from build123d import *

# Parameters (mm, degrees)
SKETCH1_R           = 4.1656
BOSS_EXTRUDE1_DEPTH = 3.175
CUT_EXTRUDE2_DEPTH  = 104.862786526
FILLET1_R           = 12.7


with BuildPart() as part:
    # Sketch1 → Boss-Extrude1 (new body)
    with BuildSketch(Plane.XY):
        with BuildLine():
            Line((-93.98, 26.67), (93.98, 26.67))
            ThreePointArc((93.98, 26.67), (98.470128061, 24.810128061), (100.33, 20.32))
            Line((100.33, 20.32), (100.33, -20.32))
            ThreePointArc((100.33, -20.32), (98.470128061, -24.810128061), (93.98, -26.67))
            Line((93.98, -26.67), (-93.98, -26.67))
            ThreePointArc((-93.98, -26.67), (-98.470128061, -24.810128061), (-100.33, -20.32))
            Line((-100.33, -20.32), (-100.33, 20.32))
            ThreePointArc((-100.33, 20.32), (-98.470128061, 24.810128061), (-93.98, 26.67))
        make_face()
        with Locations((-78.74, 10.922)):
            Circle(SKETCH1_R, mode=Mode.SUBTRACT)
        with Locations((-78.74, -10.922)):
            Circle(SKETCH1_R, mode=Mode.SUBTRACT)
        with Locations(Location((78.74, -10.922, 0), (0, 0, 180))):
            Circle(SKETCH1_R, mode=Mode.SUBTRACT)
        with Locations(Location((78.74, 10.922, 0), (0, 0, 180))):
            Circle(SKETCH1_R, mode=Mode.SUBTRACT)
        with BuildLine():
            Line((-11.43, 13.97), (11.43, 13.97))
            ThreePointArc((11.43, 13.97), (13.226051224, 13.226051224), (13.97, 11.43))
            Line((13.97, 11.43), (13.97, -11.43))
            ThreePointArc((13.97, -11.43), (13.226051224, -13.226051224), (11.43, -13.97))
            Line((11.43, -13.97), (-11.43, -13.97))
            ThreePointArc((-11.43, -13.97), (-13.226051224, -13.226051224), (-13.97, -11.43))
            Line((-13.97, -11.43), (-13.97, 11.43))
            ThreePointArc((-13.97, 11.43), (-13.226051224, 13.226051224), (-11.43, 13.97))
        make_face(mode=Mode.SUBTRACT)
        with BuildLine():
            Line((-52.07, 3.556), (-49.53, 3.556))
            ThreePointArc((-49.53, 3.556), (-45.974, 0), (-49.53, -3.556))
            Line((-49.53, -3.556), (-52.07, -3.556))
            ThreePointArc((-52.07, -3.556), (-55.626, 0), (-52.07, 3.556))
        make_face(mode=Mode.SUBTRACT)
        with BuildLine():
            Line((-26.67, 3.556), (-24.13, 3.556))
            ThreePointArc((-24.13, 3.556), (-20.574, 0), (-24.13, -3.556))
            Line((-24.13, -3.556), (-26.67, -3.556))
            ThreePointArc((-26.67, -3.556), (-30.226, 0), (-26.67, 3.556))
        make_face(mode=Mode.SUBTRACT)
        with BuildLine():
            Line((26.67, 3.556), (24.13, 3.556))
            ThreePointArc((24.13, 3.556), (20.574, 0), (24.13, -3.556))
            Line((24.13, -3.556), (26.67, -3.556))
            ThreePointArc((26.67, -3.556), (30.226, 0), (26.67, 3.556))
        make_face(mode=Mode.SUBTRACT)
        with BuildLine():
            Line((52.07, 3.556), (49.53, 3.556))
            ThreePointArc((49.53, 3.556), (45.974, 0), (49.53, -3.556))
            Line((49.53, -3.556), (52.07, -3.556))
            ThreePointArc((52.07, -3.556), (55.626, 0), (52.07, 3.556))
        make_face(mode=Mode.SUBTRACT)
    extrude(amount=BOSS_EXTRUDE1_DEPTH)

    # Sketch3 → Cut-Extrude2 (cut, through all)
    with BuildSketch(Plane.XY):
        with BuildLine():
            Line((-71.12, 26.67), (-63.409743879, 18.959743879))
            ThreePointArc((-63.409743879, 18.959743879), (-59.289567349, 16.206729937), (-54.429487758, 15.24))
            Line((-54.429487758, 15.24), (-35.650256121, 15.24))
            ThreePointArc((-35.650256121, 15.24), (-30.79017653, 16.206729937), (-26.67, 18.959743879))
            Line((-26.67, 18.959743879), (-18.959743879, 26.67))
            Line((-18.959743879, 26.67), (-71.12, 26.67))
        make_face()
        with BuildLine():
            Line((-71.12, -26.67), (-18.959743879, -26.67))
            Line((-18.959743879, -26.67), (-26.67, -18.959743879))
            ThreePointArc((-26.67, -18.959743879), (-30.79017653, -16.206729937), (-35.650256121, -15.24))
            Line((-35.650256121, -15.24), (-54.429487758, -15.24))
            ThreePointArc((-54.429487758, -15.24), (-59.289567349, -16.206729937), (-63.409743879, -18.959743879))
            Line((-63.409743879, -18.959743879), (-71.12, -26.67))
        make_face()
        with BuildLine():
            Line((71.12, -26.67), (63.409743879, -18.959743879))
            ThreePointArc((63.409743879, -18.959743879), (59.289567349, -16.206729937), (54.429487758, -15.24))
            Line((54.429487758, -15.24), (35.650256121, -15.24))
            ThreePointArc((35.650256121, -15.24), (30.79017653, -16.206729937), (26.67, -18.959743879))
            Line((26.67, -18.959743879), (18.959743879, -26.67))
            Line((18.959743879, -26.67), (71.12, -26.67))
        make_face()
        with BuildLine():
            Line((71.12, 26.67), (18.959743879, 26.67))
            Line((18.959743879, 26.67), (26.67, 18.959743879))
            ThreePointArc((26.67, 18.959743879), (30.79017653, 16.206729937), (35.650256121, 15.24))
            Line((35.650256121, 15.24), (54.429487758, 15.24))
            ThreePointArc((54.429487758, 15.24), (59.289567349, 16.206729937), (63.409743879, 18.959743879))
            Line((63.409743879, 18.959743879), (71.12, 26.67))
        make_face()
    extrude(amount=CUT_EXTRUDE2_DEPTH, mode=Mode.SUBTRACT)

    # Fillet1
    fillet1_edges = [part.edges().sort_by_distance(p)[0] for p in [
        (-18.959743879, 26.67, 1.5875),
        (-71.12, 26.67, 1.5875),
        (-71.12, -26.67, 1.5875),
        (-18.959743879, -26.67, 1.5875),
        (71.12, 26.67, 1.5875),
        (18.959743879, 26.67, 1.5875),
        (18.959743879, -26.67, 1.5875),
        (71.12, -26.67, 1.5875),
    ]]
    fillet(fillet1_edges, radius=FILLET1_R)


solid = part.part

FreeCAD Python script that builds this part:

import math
import FreeCAD as App
import Part
import Sketcher
from FreeCAD import Vector
Q = App.Units.Quantity


def edges_at(feature, points):
    """Names of the edges that pass closest to the given points."""
    edges = feature.Shape.Edges
    near = lambda p: min(range(len(edges)), key=lambda i: edges[i].distToShape(Part.Vertex(*p))[0])
    return sorted({f"Edge{near(p) + 1}" for p in points})

doc = App.newDocument("Part")
body = doc.addObject("PartDesign::Body", "Body")

sketch1 = doc.addObject("Sketcher::SketchObject", "Sketch")
body.addObject(sketch1)
sketch1.AttachmentSupport = (doc.XY_Plane, [""])
sketch1.MapMode = "FlatFace"
sketch1.addGeometry(Part.LineSegment(Vector(93.98, 26.67, 0), Vector(-93.98, 26.67, 0)), False)
sketch1.addGeometry(Part.ArcOfCircle(Part.Circle(Vector(-93.98, 20.32, 0), Vector(0, 0, 1), 6.35), math.radians(90), math.radians(180)), False)
sketch1.addGeometry(Part.LineSegment(Vector(-100.33, 20.32, 0), Vector(-100.33, -20.32, 0)), False)
sketch1.addGeometry(Part.ArcOfCircle(Part.Circle(Vector(-93.98, -20.32, 0), Vector(0, 0, 1), 6.35), math.radians(180), math.radians(270)), False)
sketch1.addGeometry(Part.LineSegment(Vector(-93.98, -26.67, 0), Vector(93.98, -26.67, 0)), False)
sketch1.addGeometry(Part.ArcOfCircle(Part.Circle(Vector(93.98, -20.32, 0), Vector(0, 0, 1), 6.35), math.radians(-90), math.radians(0)), False)
sketch1.addGeometry(Part.LineSegment(Vector(100.33, -20.32, 0), Vector(100.33, 20.32, 0)), False)
sketch1.addGeometry(Part.ArcOfCircle(Part.Circle(Vector(93.98, 20.32, 0), Vector(0, 0, 1), 6.35), math.radians(0), math.radians(90)), False)
sketch1.addGeometry(Part.Circle(Vector(78.74, -10.922, 0), Vector(0, 0, 1), 4.1656), False)
sketch1.addGeometry(Part.Circle(Vector(-78.74, -10.922, 0), Vector(0, 0, 1), 4.1656), False)
sketch1.addGeometry(Part.ArcOfCircle(Part.Circle(Vector(52.07, 0, 0), Vector(0, 0, 1), 3.556), math.radians(-90), math.radians(90)), False)
sketch1.addGeometry(Part.LineSegment(Vector(52.07, -3.556, 0), Vector(49.53, -3.556, 0)), False)
sketch1.addGeometry(Part.ArcOfCircle(Part.Circle(Vector(49.53, 0, 0), Vector(0, 0, 1), 3.556), math.radians(90), math.radians(270)), False)
sketch1.addGeometry(Part.LineSegment(Vector(49.53, 3.556, 0), Vector(52.07, 3.556, 0)), False)
sketch1.addGeometry(Part.ArcOfCircle(Part.Circle(Vector(26.67, 0, 0), Vector(0, 0, 1), 3.556), math.radians(-90), math.radians(90)), False)
sketch1.addGeometry(Part.LineSegment(Vector(26.67, -3.556, 0), Vector(24.13, -3.556, 0)), False)
sketch1.addGeometry(Part.ArcOfCircle(Part.Circle(Vector(24.13, 0, 0), Vector(0, 0, 1), 3.556), math.radians(90), math.radians(270)), False)
sketch1.addGeometry(Part.LineSegment(Vector(24.13, 3.556, 0), Vector(26.67, 3.556, 0)), False)
sketch1.addGeometry(Part.Circle(Vector(78.74, 10.922, 0), Vector(0, 0, 1), 4.1656), False)
sketch1.addGeometry(Part.LineSegment(Vector(-11.43, 13.97, 0), Vector(11.43, 13.97, 0)), False)
sketch1.addGeometry(Part.ArcOfCircle(Part.Circle(Vector(11.43, 11.43, 0), Vector(0, 0, 1), 2.54), math.radians(0), math.radians(90)), False)
sketch1.addGeometry(Part.LineSegment(Vector(13.97, 11.43, 0), Vector(13.97, -11.43, 0)), False)
sketch1.addGeometry(Part.ArcOfCircle(Part.Circle(Vector(11.43, -11.43, 0), Vector(0, 0, 1), 2.54), math.radians(-90), math.radians(0)), False)
sketch1.addGeometry(Part.LineSegment(Vector(11.43, -13.97, 0), Vector(-11.43, -13.97, 0)), False)
sketch1.addGeometry(Part.ArcOfCircle(Part.Circle(Vector(-11.43, -11.43, 0), Vector(0, 0, 1), 2.54), math.radians(-180), math.radians(-90)), False)
sketch1.addGeometry(Part.LineSegment(Vector(-13.97, -11.43, 0), Vector(-13.97, 11.43, 0)), False)
sketch1.addGeometry(Part.ArcOfCircle(Part.Circle(Vector(-11.43, 11.43, 0), Vector(0, 0, 1), 2.54), math.radians(90), math.radians(180)), False)
sketch1.addGeometry(Part.LineSegment(Vector(-26.67, 3.556, 0), Vector(-24.13, 3.556, 0)), False)
sketch1.addGeometry(Part.ArcOfCircle(Part.Circle(Vector(-24.13, 0, 0), Vector(0, 0, 1), 3.556), math.radians(-90), math.radians(90)), False)
sketch1.addGeometry(Part.LineSegment(Vector(-24.13, -3.556, 0), Vector(-26.67, -3.556, 0)), False)
sketch1.addGeometry(Part.ArcOfCircle(Part.Circle(Vector(-26.67, 0, 0), Vector(0, 0, 1), 3.556), math.radians(90), math.radians(270)), False)
sketch1.addGeometry(Part.LineSegment(Vector(-52.07, 3.556, 0), Vector(-49.53, 3.556, 0)), False)
sketch1.addGeometry(Part.ArcOfCircle(Part.Circle(Vector(-49.53, 0, 0), Vector(0, 0, 1), 3.556), math.radians(-90), math.radians(90)), False)
sketch1.addGeometry(Part.LineSegment(Vector(-49.53, -3.556, 0), Vector(-52.07, -3.556, 0)), False)
sketch1.addGeometry(Part.ArcOfCircle(Part.Circle(Vector(-52.07, 0, 0), Vector(0, 0, 1), 3.556), math.radians(90), math.radians(270)), False)
sketch1.addGeometry(Part.Circle(Vector(-78.74, 10.922, 0), Vector(0, 0, 1), 4.1656), False)
sketch1.addConstraint(Sketcher.Constraint("Tangent", 0, 2, 1, 1))
sketch1.addConstraint(Sketcher.Constraint("Tangent", 1, 2, 2, 1))
sketch1.addConstraint(Sketcher.Constraint("Tangent", 2, 2, 3, 1))
sketch1.addConstraint(Sketcher.Constraint("Tangent", 3, 2, 4, 1))
sketch1.addConstraint(Sketcher.Constraint("Tangent", 4, 2, 5, 1))
sketch1.addConstraint(Sketcher.Constraint("Tangent", 5, 2, 6, 1))
sketch1.addConstraint(Sketcher.Constraint("Tangent", 6, 2, 7, 1))
sketch1.addConstraint(Sketcher.Constraint("Tangent", 7, 2, 0, 1))
sketch1.addConstraint(Sketcher.Constraint("Tangent", 10, 1, 11, 1))
sketch1.addConstraint(Sketcher.Constraint("Tangent", 11, 2, 12, 2))
sketch1.addConstraint(Sketcher.Constraint("Tangent", 12, 1, 13, 1))
sketch1.addConstraint(Sketcher.Constraint("Tangent", 13, 2, 10, 2))
sketch1.addConstraint(Sketcher.Constraint("Tangent", 14, 1, 15, 1))
sketch1.addConstraint(Sketcher.Constraint("Tangent", 15, 2, 16, 2))
sketch1.addConstraint(Sketcher.Constraint("Tangent", 16, 1, 17, 1))
sketch1.addConstraint(Sketcher.Constraint("Tangent", 17, 2, 14, 2))
sketch1.addConstraint(Sketcher.Constraint("Tangent", 19, 2, 20, 2))
sketch1.addConstraint(Sketcher.Constraint("Tangent", 20, 1, 21, 1))
sketch1.addConstraint(Sketcher.Constraint("Tangent", 21, 2, 22, 2))
sketch1.addConstraint(Sketcher.Constraint("Tangent", 22, 1, 23, 1))
sketch1.addConstraint(Sketcher.Constraint("Tangent", 23, 2, 24, 2))
sketch1.addConstraint(Sketcher.Constraint("Tangent", 24, 1, 25, 1))
sketch1.addConstraint(Sketcher.Constraint("Tangent", 25, 2, 26, 2))
sketch1.addConstraint(Sketcher.Constraint("Tangent", 26, 1, 19, 1))
sketch1.addConstraint(Sketcher.Constraint("Tangent", 27, 2, 28, 2))
sketch1.addConstraint(Sketcher.Constraint("Tangent", 28, 1, 29, 1))
sketch1.addConstraint(Sketcher.Constraint("Tangent", 29, 2, 30, 2))
sketch1.addConstraint(Sketcher.Constraint("Tangent", 30, 1, 27, 1))
sketch1.addConstraint(Sketcher.Constraint("Tangent", 31, 2, 32, 2))
sketch1.addConstraint(Sketcher.Constraint("Tangent", 32, 1, 33, 1))
sketch1.addConstraint(Sketcher.Constraint("Tangent", 33, 2, 34, 2))
sketch1.addConstraint(Sketcher.Constraint("Tangent", 34, 1, 31, 1))
sketch1.addConstraint(Sketcher.Constraint("Horizontal", 0))
sketch1.addConstraint(Sketcher.Constraint("Vertical", 2))
sketch1.addConstraint(Sketcher.Constraint("Horizontal", 4))
sketch1.addConstraint(Sketcher.Constraint("Vertical", 6))
sketch1.addConstraint(Sketcher.Constraint("Horizontal", 11))
sketch1.addConstraint(Sketcher.Constraint("Horizontal", 13))
sketch1.addConstraint(Sketcher.Constraint("Horizontal", 15))
sketch1.addConstraint(Sketcher.Constraint("Horizontal", 17))
sketch1.addConstraint(Sketcher.Constraint("Horizontal", 19))
sketch1.addConstraint(Sketcher.Constraint("Vertical", 21))
sketch1.addConstraint(Sketcher.Constraint("Horizontal", 23))
sketch1.addConstraint(Sketcher.Constraint("Vertical", 25))
sketch1.addConstraint(Sketcher.Constraint("Horizontal", 27))
sketch1.addConstraint(Sketcher.Constraint("Horizontal", 29))
sketch1.addConstraint(Sketcher.Constraint("Horizontal", 31))
sketch1.addConstraint(Sketcher.Constraint("Horizontal", 33))
sketch1.addConstraint(Sketcher.Constraint("Equal", 1, 3))
sketch1.addConstraint(Sketcher.Constraint("Equal", 3, 5))
sketch1.addConstraint(Sketcher.Constraint("Equal", 5, 7))
sketch1.addConstraint(Sketcher.Constraint("Equal", 8, 9))
sketch1.addConstraint(Sketcher.Constraint("Equal", 12, 14))
sketch1.addConstraint(Sketcher.Constraint("Equal", 9, 18))
sketch1.addConstraint(Sketcher.Constraint("Equal", 20, 22))
sketch1.addConstraint(Sketcher.Constraint("Equal", 22, 24))
sketch1.addConstraint(Sketcher.Constraint("Equal", 24, 26))
sketch1.addConstraint(Sketcher.Constraint("Equal", 16, 28))
sketch1.addConstraint(Sketcher.Constraint("Equal", 30, 32))
sketch1.addConstraint(Sketcher.Constraint("Equal", 18, 35))
sketch1.addConstraint(Sketcher.Constraint("Symmetric", 1, 3, 5, 3, -1, 1))
sketch1.addConstraint(Sketcher.Constraint("Symmetric", 9, 3, 18, 3, -1, 1))
sketch1.addConstraint(Sketcher.Constraint("Symmetric", 20, 3, 24, 3, -1, 1))
sketch1.addConstraint(Sketcher.Constraint("Symmetric", 16, 3, 28, 3, -1, 1))
sketch1.addConstraint(Sketcher.Constraint("Symmetric", 12, 3, 32, 3, -1, 1))
sketch1.addConstraint(Sketcher.Constraint("Symmetric", 8, 3, 35, 3, -1, 1))
sketch1.addConstraint(Sketcher.Constraint("Symmetric", 8, 3, 9, 3, -2))
sketch1.addConstraint(Sketcher.Constraint("Symmetric", 14, 3, 30, 3, -2))
sketch1.addConstraint(Sketcher.Constraint("Symmetric", 10, 3, 34, 3, -2))
sketch1.addConstraint(Sketcher.Constraint("Equal", 13, 15))
sketch1.addConstraint(Sketcher.Constraint("Equal", 23, 21))
sketch1.addConstraint(Sketcher.Constraint("Radius", 20, Q("0.1 in")))
sketch1.addConstraint(Sketcher.Constraint("Radius", 1, Q("0.25 in")))
sketch1.addConstraint(Sketcher.Constraint("Radius", 10, Q("0.14 in")))
sketch1.addConstraint(Sketcher.Constraint("Diameter", 8, Q("0.328 in")))
sketch1.addConstraint(Sketcher.Constraint("DistanceX", 0, 2, 0, 1, Q("7.4 in")))
sketch1.addConstraint(Sketcher.Constraint("DistanceX", 11, 2, 11, 1, Q("0.1 in")))
sketch1.addConstraint(Sketcher.Constraint("DistanceX", 19, 1, 19, 2, Q("0.9 in")))
sketch1.addConstraint(Sketcher.Constraint("DistanceY", 2, 2, 2, 1, Q("1.6 in")))
sketch1.addConstraint(Sketcher.Constraint("DistanceX", 14, 3, 10, 3, Q("1 in")))
sketch1.addConstraint(Sketcher.Constraint("DistanceX", -1, 1, 8, 3, Q("3.1 in")))
sketch1.addConstraint(Sketcher.Constraint("DistanceX", 20, 3, 16, 3, Q("0.5 in")))
sketch1.addConstraint(Sketcher.Constraint("DistanceY", 8, 3, -1, 1, Q("0.43 in")))
pad1 = doc.addObject("PartDesign::Pad", "Pad")
body.addObject(pad1)
pad1.Profile = sketch1
pad1.Length = Q("0.125 in")

sketch2 = doc.addObject("Sketcher::SketchObject", "Sketch001")
body.addObject(sketch2)
sketch2.AttachmentSupport = (doc.XY_Plane, [""])
sketch2.MapMode = "FlatFace"
sketch2.addGeometry(Part.LineSegment(Vector(-71.12, 26.67, 0), Vector(-63.409744, 18.959744, 0)), False)
sketch2.addGeometry(Part.ArcOfCircle(Part.Circle(Vector(-54.429488, 27.94, 0), Vector(0, 0, 1), 12.7), math.radians(-135), math.radians(-90)), False)
sketch2.addGeometry(Part.LineSegment(Vector(-54.429488, 15.24, 0), Vector(-35.650256, 15.24, 0)), False)
sketch2.addGeometry(Part.ArcOfCircle(Part.Circle(Vector(-35.650256, 27.94, 0), Vector(0, 0, 1), 12.7), math.radians(-90), math.radians(-45)), False)
sketch2.addGeometry(Part.LineSegment(Vector(-26.67, 18.959744, 0), Vector(-18.959744, 26.67, 0)), False)
sketch2.addGeometry(Part.LineSegment(Vector(-18.959744, 26.67, 0), Vector(-71.12, 26.67, 0)), False)
sketch2.addGeometry(Part.LineSegment(Vector(-71.12, -26.67, 0), Vector(-18.959744, -26.67, 0)), False)
sketch2.addGeometry(Part.LineSegment(Vector(-18.959744, -26.67, 0), Vector(-26.67, -18.959744, 0)), False)
sketch2.addGeometry(Part.ArcOfCircle(Part.Circle(Vector(-35.650256, -27.94, 0), Vector(0, 0, 1), 12.7), math.radians(45), math.radians(90)), False)
sketch2.addGeometry(Part.LineSegment(Vector(-35.650256, -15.24, 0), Vector(-54.429488, -15.24, 0)), False)
sketch2.addGeometry(Part.ArcOfCircle(Part.Circle(Vector(-54.429488, -27.94, 0), Vector(0, 0, 1), 12.7), math.radians(90), math.radians(135)), False)
sketch2.addGeometry(Part.LineSegment(Vector(-63.409744, -18.959744, 0), Vector(-71.12, -26.67, 0)), False)
sketch2.addGeometry(Part.LineSegment(Vector(71.12, -26.67, 0), Vector(63.409744, -18.959744, 0)), False)
sketch2.addGeometry(Part.ArcOfCircle(Part.Circle(Vector(54.429488, -27.94, 0), Vector(0, 0, 1), 12.7), math.radians(45), math.radians(90)), False)
sketch2.addGeometry(Part.LineSegment(Vector(54.429488, -15.24, 0), Vector(35.650256, -15.24, 0)), False)
sketch2.addGeometry(Part.ArcOfCircle(Part.Circle(Vector(35.650256, -27.94, 0), Vector(0, 0, 1), 12.7), math.radians(90), math.radians(135)), False)
sketch2.addGeometry(Part.LineSegment(Vector(26.67, -18.959744, 0), Vector(18.959744, -26.67, 0)), False)
sketch2.addGeometry(Part.LineSegment(Vector(18.959744, -26.67, 0), Vector(71.12, -26.67, 0)), False)
sketch2.addGeometry(Part.LineSegment(Vector(71.12, 26.67, 0), Vector(18.959744, 26.67, 0)), False)
sketch2.addGeometry(Part.LineSegment(Vector(18.959744, 26.67, 0), Vector(26.67, 18.959744, 0)), False)
sketch2.addGeometry(Part.ArcOfCircle(Part.Circle(Vector(35.650256, 27.94, 0), Vector(0, 0, 1), 12.7), math.radians(-135), math.radians(-90)), False)
sketch2.addGeometry(Part.LineSegment(Vector(35.650256, 15.24, 0), Vector(54.429488, 15.24, 0)), False)
sketch2.addGeometry(Part.ArcOfCircle(Part.Circle(Vector(54.429488, 27.94, 0), Vector(0, 0, 1), 12.7), math.radians(-90), math.radians(-45)), False)
sketch2.addGeometry(Part.LineSegment(Vector(63.409744, 18.959744, 0), Vector(71.12, 26.67, 0)), False)
sketch2.addConstraint(Sketcher.Constraint("Tangent", 0, 2, 1, 1))
sketch2.addConstraint(Sketcher.Constraint("Tangent", 1, 2, 2, 1))
sketch2.addConstraint(Sketcher.Constraint("Tangent", 2, 2, 3, 1))
sketch2.addConstraint(Sketcher.Constraint("Tangent", 3, 2, 4, 1))
sketch2.addConstraint(Sketcher.Constraint("Coincident", 4, 2, 5, 1))
sketch2.addConstraint(Sketcher.Constraint("Coincident", 5, 2, 0, 1))
sketch2.addConstraint(Sketcher.Constraint("Coincident", 6, 2, 7, 1))
sketch2.addConstraint(Sketcher.Constraint("Tangent", 7, 2, 8, 1))
sketch2.addConstraint(Sketcher.Constraint("Tangent", 8, 2, 9, 1))
sketch2.addConstraint(Sketcher.Constraint("Tangent", 9, 2, 10, 1))
sketch2.addConstraint(Sketcher.Constraint("Tangent", 10, 2, 11, 1))
sketch2.addConstraint(Sketcher.Constraint("Coincident", 11, 2, 6, 1))
sketch2.addConstraint(Sketcher.Constraint("Tangent", 12, 2, 13, 1))
sketch2.addConstraint(Sketcher.Constraint("Tangent", 13, 2, 14, 1))
sketch2.addConstraint(Sketcher.Constraint("Tangent", 14, 2, 15, 1))
sketch2.addConstraint(Sketcher.Constraint("Tangent", 15, 2, 16, 1))
sketch2.addConstraint(Sketcher.Constraint("Coincident", 16, 2, 17, 1))
sketch2.addConstraint(Sketcher.Constraint("Coincident", 17, 2, 12, 1))
sketch2.addConstraint(Sketcher.Constraint("Coincident", 18, 2, 19, 1))
sketch2.addConstraint(Sketcher.Constraint("Tangent", 19, 2, 20, 1))
sketch2.addConstraint(Sketcher.Constraint("Tangent", 20, 2, 21, 1))
sketch2.addConstraint(Sketcher.Constraint("Tangent", 21, 2, 22, 1))
sketch2.addConstraint(Sketcher.Constraint("Tangent", 22, 2, 23, 1))
sketch2.addConstraint(Sketcher.Constraint("Coincident", 23, 2, 18, 1))
sketch2.addConstraint(Sketcher.Constraint("Horizontal", 2))
sketch2.addConstraint(Sketcher.Constraint("Horizontal", 5))
sketch2.addConstraint(Sketcher.Constraint("Horizontal", 6))
sketch2.addConstraint(Sketcher.Constraint("Horizontal", 9))
sketch2.addConstraint(Sketcher.Constraint("Horizontal", 14))
sketch2.addConstraint(Sketcher.Constraint("Horizontal", 17))
sketch2.addConstraint(Sketcher.Constraint("Horizontal", 18))
sketch2.addConstraint(Sketcher.Constraint("Horizontal", 21))
sketch2.addConstraint(Sketcher.Constraint("Equal", 1, 3))
sketch2.addConstraint(Sketcher.Constraint("Equal", 3, 8))
sketch2.addConstraint(Sketcher.Constraint("Equal", 8, 10))
sketch2.addConstraint(Sketcher.Constraint("Equal", 10, 13))
sketch2.addConstraint(Sketcher.Constraint("Equal", 13, 15))
sketch2.addConstraint(Sketcher.Constraint("Equal", 15, 20))
sketch2.addConstraint(Sketcher.Constraint("Equal", 20, 22))
sketch2.addConstraint(Sketcher.Constraint("Symmetric", 1, 3, 13, 3, -1, 1))
sketch2.addConstraint(Sketcher.Constraint("Symmetric", 8, 3, 20, 3, -1, 1))
sketch2.addConstraint(Sketcher.Constraint("Symmetric", 3, 2, 15, 2, -1, 1))
sketch2.addConstraint(Sketcher.Constraint("Symmetric", 5, 2, 17, 2, -1, 1))
sketch2.addConstraint(Sketcher.Constraint("Symmetric", 6, 2, 18, 2, -1, 1))
sketch2.addConstraint(Sketcher.Constraint("Symmetric", 10, 2, 22, 2, -1, 1))
sketch2.addConstraint(Sketcher.Constraint("Symmetric", 10, 3, 13, 3, -2))
sketch2.addConstraint(Sketcher.Constraint("Symmetric", 7, 2, 15, 2, -2))
sketch2.addConstraint(Sketcher.Constraint("Symmetric", 11, 2, 17, 2, -2))
sketch2.addConstraint(Sketcher.Constraint("Perpendicular", 0, 4))
sketch2.addConstraint(Sketcher.Constraint("Perpendicular", 4, 7))
sketch2.addConstraint(Sketcher.Constraint("Radius", 1, Q("0.5 in")))
sketch2.addConstraint(Sketcher.Constraint("DistanceY", -1, 1, 1, 3, Q("1.1 in")))
sketch2.addConstraint(Sketcher.Constraint("DistanceX", 5, 2, -1, 1, Q("2.8 in")))
sketch2.addConstraint(Sketcher.Constraint("DistanceX", 0, 2, 20, 3, Q("3.9 in")))
sketch2.addConstraint(Sketcher.Constraint("DistanceY", 6, 2, 4, 2, Q("2.1 in")))
pocket1 = doc.addObject("PartDesign::Pocket", "Pocket")
body.addObject(pocket1)
pocket1.Profile = sketch2
pocket1.Type = "ThroughAll"
pocket1.Reversed = True
doc.recompute()

fillet = doc.addObject("PartDesign::Fillet", "Fillet")
body.addObject(fillet)
fillet.Base = (pocket1, edges_at(pocket1, [
    (-18.96, 26.67, 1.587),
    (-71.12, 26.67, 1.587),
    (-71.12, -26.67, 1.587),
    (-18.96, -26.67, 1.587),
    (71.12, 26.67, 1.587),
    (18.96, 26.67, 1.587),
    (18.96, -26.67, 1.587),
    (71.12, -26.67, 1.587),
]))
fillet.Radius = Q("0.5 in")

doc.recompute()
